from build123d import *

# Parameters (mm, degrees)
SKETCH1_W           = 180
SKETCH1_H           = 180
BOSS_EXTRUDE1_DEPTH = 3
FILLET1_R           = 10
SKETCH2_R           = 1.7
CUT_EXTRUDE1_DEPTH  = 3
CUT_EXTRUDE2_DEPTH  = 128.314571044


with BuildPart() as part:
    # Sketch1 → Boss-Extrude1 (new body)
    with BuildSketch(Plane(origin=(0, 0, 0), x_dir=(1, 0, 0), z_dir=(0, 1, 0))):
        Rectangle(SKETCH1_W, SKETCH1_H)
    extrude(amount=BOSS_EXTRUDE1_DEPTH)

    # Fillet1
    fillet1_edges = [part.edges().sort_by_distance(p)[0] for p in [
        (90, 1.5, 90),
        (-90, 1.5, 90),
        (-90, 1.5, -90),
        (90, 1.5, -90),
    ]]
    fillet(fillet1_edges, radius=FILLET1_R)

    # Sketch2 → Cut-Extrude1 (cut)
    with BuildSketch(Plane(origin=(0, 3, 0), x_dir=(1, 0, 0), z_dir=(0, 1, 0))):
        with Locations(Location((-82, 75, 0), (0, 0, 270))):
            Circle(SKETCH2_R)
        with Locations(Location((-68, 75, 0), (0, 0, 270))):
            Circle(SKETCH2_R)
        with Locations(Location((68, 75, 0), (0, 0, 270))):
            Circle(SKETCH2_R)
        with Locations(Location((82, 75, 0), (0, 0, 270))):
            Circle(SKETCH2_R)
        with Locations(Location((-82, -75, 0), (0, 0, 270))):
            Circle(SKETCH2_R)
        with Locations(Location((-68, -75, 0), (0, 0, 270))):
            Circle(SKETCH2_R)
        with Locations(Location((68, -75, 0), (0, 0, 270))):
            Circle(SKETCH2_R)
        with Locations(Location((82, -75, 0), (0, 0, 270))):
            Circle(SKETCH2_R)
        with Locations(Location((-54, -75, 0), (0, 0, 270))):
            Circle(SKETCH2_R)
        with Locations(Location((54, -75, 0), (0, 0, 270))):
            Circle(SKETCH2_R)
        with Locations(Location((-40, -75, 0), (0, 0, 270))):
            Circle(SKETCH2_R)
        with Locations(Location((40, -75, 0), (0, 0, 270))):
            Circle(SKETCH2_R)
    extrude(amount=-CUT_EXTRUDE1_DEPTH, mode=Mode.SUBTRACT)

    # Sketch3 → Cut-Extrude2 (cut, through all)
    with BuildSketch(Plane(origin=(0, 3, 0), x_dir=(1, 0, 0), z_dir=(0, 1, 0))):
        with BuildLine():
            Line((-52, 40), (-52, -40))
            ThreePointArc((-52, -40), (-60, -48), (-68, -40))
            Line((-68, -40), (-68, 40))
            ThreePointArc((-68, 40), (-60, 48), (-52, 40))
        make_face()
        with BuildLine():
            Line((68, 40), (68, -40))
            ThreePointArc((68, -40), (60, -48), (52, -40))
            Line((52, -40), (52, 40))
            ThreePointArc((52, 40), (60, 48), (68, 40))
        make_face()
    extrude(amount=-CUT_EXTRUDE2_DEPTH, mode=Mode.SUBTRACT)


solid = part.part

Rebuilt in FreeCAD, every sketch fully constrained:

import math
import FreeCAD as App
import Part
import Sketcher


def edges_at(feature, points):
    """Names of the edges that pass closest to the given points."""
    edges = feature.Shape.Edges
    near = lambda p: min(range(len(edges)), key=lambda i: edges[i].distToShape(Part.Vertex(*p))[0])
    return sorted({f"Edge{near(p) + 1}" for p in points})


def add_polygon(sketch, points):
    """Adds a closed chain of lines whose ends are joined by coincident constraints."""
    first, n = sketch.GeometryCount, len(points)
    for a, b in zip(points, points[1:] + points[:1]):
        sketch.addGeometry(Part.LineSegment(App.Vector(*a, 0), App.Vector(*b, 0)), False)
    for i in range(n):
        sketch.addConstraint(Sketcher.Constraint("Coincident", first + i, 2, first + (i + 1) % n, 1))

doc = App.newDocument("Part")
body = doc.addObject("PartDesign::Body", "Body")

sketch1 = body.newObject("Sketcher::SketchObject", "Sketch")
sketch1.AttachmentSupport = (doc.getObject("XZ_Plane"), [""])
sketch1.MapMode = "FlatFace"
add_polygon(sketch1, [(-90, -90), (-90, 90), (90, 90), (90, -90)])
sketch1.addConstraint([
    Sketcher.Constraint("Vertical", 0),
    Sketcher.Constraint("Horizontal", 1),
    Sketcher.Constraint("Vertical", 2),
    Sketcher.Constraint("Horizontal", 3),
    Sketcher.Constraint("Symmetric", 0, 2, 2, 2, -1, 1),
    Sketcher.Constraint("Equal", 3, 0),
    Sketcher.Constraint("DistanceX", 1, 1, 1, 2, 180.0),
])
pad1 = body.newObject("PartDesign::Pad", "Pad")
pad1.Profile = sketch1
pad1.Length = 3
pad1.Reversed = True
doc.recompute()

fillet = body.newObject("PartDesign::Fillet", "Fillet")
fillet.Base = (pad1, edges_at(pad1, [
    (90, 1.5, 90),
    (-90, 1.5, 90),
    (-90, 1.5, -90),
    (90, 1.5, -90),
]))
fillet.Radius = 10

sketch2 = body.newObject("Sketcher::SketchObject", "Sketch001")
sketch2.AttachmentSupport = (doc.getObject("XZ_Plane"), [""])
sketch2.MapMode = "FlatFace"
sketch2.AttachmentOffset = App.Placement(App.Vector(0, 0, -3), App.Rotation())
sketch2.addGeometry([
    Part.Circle(App.Vector(-82, -75, 0), App.Vector(0, 0, 1), 1.7),
    Part.Circle(App.Vector(-68, -75, 0), App.Vector(0, 0, 1), 1.7),
    Part.Circle(App.Vector(68, -75, 0), App.Vector(0, 0, 1), 1.7),
    Part.Circle(App.Vector(82, -75, 0), App.Vector(0, 0, 1), 1.7),
    Part.Circle(App.Vector(-82, 75, 0), App.Vector(0, 0, 1), 1.7),
    Part.Circle(App.Vector(-68, 75, 0), App.Vector(0, 0, 1), 1.7),
    Part.Circle(App.Vector(68, 75, 0), App.Vector(0, 0, 1), 1.7),
    Part.Circle(App.Vector(82, 75, 0), App.Vector(0, 0, 1), 1.7),
    Part.Circle(App.Vector(-54, 75, 0), App.Vector(0, 0, 1), 1.7),
    Part.Circle(App.Vector(54, 75, 0), App.Vector(0, 0, 1), 1.7),
    Part.Circle(App.Vector(-40, 75, 0), App.Vector(0, 0, 1), 1.7),
    Part.Circle(App.Vector(40, 75, 0), App.Vector(0, 0, 1), 1.7),
], False)
sketch2.addConstraint([
    Sketcher.Constraint("Equal", 0, 1),
    Sketcher.Constraint("Equal", 1, 2),
    Sketcher.Constraint("Equal", 2, 3),
    Sketcher.Constraint("Equal", 3, 4),
    Sketcher.Constraint("Equal", 4, 5),
    Sketcher.Constraint("Equal", 5, 6),
    Sketcher.Constraint("Equal", 6, 7),
    Sketcher.Constraint("Equal", 7, 8),
    Sketcher.Constraint("Equal", 8, 9),
    Sketcher.Constraint("Equal", 9, 10),
    Sketcher.Constraint("Equal", 10, 11),
    Sketcher.Constraint("Symmetric", 3, 3, 4, 3, -1, 1),
    Sketcher.Constraint("Symmetric", 2, 3, 5, 3, -1, 1),
    Sketcher.Constraint("Symmetric", 1, 3, 6, 3, -1, 1),
    Sketcher.Constraint("Symmetric", 0, 3, 7, 3, -1, 1),
    Sketcher.Constraint("Symmetric", 1, 3, 2, 3, -2),
    Sketcher.Constraint("Symmetric", 0, 3, 3, 3, -2),
    Sketcher.Constraint("Symmetric", 8, 3, 9, 3, -2),
    Sketcher.Constraint("Symmetric", 10, 3, 11, 3, -2),
    Sketcher.Constraint("Horizontal", 0, 3, 1, 3),
    Sketcher.Constraint("Horizontal", 7, 3, 8, 3),
    Sketcher.Constraint("Horizontal", 9, 3, 10, 3),
    Sketcher.Constraint("Diameter", 0, 3.4),
    Sketcher.Constraint("DistanceX", 0, 3, -1, 1, 82.0),
    Sketcher.Constraint("DistanceY", 0, 3, -1, 1, 75.0),
    Sketcher.Constraint("DistanceX", 1, 3, -1, 1, 68.0),
    Sketcher.Constraint("DistanceX", 8, 3, -1, 1, 54.0),
    Sketcher.Constraint("DistanceX", 10, 3, -1, 1, 40.0),
])
pocket1 = body.newObject("PartDesign::Pocket", "Pocket")
pocket1.Profile = sketch2
pocket1.Length = 3
pocket1.Reversed = True

sketch3 = body.newObject("Sketcher::SketchObject", "Sketch002")
sketch3.AttachmentSupport = (doc.getObject("XZ_Plane"), [""])
sketch3.MapMode = "FlatFace"
sketch3.AttachmentOffset = App.Placement(App.Vector(0, 0, -3), App.Rotation())
sketch3.addGeometry([
    Part.LineSegment(App.Vector(-52, 40, 0), App.Vector(-52, -40, 0)),
    Part.ArcOfCircle(Part.Circle(App.Vector(-60, -40, 0), App.Vector(0, 0, 1), 8), math.radians(180), math.radians(360)),
    Part.LineSegment(App.Vector(-68, -40, 0), App.Vector(-68, 40, 0)),
    Part.ArcOfCircle(Part.Circle(App.Vector(-60, 40, 0), App.Vector(0, 0, 1), 8), math.radians(0), math.radians(180)),
    Part.LineSegment(App.Vector(68, 40, 0), App.Vector(68, -40, 0)),
    Part.ArcOfCircle(Part.Circle(App.Vector(60, -40, 0), App.Vector(0, 0, 1), 8), math.radians(180), math.radians(360)),
    Part.LineSegment(App.Vector(52, -40, 0), App.Vector(52, 40, 0)),
    Part.ArcOfCircle(Part.Circle(App.Vector(60, 40, 0), App.Vector(0, 0, 1), 8), math.radians(0), math.radians(180)),
], False)
sketch3.addConstraint([
    Sketcher.Constraint("Tangent", 0, 2, 1, 2),
    Sketcher.Constraint("Tangent", 1, 1, 2, 1),
    Sketcher.Constraint("Tangent", 2, 2, 3, 2),
    Sketcher.Constraint("Tangent", 3, 1, 0, 1),
    Sketcher.Constraint("Tangent", 4, 2, 5, 2),
    Sketcher.Constraint("Tangent", 5, 1, 6, 1),
    Sketcher.Constraint("Tangent", 6, 2, 7, 2),
    Sketcher.Constraint("Tangent", 7, 1, 4, 1),
    Sketcher.Constraint("Vertical", 0),
    Sketcher.Constraint("Vertical", 2),
    Sketcher.Constraint("Vertical", 4),
    Sketcher.Constraint("Vertical", 6),
    Sketcher.Constraint("Equal", 3, 5),
    Sketcher.Constraint("Symmetric", 3, 3, 5, 3, -1, 1),
    Sketcher.Constraint("Horizontal", 1, 3, 5, 3),
    Sketcher.Constraint("Horizontal", 3, 3, 7, 3),
    Sketcher.Constraint("Radius", 1, 8.0),
    Sketcher.Constraint("DistanceY", 0, 2, 0, 1, 80.0),
    Sketcher.Constraint("DistanceX", 1, 3, -1, 1, 60.0),
])
pocket2 = body.newObject("PartDesign::Pocket", "Pocket001")
pocket2.Profile = sketch3
pocket2.Type = "ThroughAll"
pocket2.Reversed = True

doc.recompute()
